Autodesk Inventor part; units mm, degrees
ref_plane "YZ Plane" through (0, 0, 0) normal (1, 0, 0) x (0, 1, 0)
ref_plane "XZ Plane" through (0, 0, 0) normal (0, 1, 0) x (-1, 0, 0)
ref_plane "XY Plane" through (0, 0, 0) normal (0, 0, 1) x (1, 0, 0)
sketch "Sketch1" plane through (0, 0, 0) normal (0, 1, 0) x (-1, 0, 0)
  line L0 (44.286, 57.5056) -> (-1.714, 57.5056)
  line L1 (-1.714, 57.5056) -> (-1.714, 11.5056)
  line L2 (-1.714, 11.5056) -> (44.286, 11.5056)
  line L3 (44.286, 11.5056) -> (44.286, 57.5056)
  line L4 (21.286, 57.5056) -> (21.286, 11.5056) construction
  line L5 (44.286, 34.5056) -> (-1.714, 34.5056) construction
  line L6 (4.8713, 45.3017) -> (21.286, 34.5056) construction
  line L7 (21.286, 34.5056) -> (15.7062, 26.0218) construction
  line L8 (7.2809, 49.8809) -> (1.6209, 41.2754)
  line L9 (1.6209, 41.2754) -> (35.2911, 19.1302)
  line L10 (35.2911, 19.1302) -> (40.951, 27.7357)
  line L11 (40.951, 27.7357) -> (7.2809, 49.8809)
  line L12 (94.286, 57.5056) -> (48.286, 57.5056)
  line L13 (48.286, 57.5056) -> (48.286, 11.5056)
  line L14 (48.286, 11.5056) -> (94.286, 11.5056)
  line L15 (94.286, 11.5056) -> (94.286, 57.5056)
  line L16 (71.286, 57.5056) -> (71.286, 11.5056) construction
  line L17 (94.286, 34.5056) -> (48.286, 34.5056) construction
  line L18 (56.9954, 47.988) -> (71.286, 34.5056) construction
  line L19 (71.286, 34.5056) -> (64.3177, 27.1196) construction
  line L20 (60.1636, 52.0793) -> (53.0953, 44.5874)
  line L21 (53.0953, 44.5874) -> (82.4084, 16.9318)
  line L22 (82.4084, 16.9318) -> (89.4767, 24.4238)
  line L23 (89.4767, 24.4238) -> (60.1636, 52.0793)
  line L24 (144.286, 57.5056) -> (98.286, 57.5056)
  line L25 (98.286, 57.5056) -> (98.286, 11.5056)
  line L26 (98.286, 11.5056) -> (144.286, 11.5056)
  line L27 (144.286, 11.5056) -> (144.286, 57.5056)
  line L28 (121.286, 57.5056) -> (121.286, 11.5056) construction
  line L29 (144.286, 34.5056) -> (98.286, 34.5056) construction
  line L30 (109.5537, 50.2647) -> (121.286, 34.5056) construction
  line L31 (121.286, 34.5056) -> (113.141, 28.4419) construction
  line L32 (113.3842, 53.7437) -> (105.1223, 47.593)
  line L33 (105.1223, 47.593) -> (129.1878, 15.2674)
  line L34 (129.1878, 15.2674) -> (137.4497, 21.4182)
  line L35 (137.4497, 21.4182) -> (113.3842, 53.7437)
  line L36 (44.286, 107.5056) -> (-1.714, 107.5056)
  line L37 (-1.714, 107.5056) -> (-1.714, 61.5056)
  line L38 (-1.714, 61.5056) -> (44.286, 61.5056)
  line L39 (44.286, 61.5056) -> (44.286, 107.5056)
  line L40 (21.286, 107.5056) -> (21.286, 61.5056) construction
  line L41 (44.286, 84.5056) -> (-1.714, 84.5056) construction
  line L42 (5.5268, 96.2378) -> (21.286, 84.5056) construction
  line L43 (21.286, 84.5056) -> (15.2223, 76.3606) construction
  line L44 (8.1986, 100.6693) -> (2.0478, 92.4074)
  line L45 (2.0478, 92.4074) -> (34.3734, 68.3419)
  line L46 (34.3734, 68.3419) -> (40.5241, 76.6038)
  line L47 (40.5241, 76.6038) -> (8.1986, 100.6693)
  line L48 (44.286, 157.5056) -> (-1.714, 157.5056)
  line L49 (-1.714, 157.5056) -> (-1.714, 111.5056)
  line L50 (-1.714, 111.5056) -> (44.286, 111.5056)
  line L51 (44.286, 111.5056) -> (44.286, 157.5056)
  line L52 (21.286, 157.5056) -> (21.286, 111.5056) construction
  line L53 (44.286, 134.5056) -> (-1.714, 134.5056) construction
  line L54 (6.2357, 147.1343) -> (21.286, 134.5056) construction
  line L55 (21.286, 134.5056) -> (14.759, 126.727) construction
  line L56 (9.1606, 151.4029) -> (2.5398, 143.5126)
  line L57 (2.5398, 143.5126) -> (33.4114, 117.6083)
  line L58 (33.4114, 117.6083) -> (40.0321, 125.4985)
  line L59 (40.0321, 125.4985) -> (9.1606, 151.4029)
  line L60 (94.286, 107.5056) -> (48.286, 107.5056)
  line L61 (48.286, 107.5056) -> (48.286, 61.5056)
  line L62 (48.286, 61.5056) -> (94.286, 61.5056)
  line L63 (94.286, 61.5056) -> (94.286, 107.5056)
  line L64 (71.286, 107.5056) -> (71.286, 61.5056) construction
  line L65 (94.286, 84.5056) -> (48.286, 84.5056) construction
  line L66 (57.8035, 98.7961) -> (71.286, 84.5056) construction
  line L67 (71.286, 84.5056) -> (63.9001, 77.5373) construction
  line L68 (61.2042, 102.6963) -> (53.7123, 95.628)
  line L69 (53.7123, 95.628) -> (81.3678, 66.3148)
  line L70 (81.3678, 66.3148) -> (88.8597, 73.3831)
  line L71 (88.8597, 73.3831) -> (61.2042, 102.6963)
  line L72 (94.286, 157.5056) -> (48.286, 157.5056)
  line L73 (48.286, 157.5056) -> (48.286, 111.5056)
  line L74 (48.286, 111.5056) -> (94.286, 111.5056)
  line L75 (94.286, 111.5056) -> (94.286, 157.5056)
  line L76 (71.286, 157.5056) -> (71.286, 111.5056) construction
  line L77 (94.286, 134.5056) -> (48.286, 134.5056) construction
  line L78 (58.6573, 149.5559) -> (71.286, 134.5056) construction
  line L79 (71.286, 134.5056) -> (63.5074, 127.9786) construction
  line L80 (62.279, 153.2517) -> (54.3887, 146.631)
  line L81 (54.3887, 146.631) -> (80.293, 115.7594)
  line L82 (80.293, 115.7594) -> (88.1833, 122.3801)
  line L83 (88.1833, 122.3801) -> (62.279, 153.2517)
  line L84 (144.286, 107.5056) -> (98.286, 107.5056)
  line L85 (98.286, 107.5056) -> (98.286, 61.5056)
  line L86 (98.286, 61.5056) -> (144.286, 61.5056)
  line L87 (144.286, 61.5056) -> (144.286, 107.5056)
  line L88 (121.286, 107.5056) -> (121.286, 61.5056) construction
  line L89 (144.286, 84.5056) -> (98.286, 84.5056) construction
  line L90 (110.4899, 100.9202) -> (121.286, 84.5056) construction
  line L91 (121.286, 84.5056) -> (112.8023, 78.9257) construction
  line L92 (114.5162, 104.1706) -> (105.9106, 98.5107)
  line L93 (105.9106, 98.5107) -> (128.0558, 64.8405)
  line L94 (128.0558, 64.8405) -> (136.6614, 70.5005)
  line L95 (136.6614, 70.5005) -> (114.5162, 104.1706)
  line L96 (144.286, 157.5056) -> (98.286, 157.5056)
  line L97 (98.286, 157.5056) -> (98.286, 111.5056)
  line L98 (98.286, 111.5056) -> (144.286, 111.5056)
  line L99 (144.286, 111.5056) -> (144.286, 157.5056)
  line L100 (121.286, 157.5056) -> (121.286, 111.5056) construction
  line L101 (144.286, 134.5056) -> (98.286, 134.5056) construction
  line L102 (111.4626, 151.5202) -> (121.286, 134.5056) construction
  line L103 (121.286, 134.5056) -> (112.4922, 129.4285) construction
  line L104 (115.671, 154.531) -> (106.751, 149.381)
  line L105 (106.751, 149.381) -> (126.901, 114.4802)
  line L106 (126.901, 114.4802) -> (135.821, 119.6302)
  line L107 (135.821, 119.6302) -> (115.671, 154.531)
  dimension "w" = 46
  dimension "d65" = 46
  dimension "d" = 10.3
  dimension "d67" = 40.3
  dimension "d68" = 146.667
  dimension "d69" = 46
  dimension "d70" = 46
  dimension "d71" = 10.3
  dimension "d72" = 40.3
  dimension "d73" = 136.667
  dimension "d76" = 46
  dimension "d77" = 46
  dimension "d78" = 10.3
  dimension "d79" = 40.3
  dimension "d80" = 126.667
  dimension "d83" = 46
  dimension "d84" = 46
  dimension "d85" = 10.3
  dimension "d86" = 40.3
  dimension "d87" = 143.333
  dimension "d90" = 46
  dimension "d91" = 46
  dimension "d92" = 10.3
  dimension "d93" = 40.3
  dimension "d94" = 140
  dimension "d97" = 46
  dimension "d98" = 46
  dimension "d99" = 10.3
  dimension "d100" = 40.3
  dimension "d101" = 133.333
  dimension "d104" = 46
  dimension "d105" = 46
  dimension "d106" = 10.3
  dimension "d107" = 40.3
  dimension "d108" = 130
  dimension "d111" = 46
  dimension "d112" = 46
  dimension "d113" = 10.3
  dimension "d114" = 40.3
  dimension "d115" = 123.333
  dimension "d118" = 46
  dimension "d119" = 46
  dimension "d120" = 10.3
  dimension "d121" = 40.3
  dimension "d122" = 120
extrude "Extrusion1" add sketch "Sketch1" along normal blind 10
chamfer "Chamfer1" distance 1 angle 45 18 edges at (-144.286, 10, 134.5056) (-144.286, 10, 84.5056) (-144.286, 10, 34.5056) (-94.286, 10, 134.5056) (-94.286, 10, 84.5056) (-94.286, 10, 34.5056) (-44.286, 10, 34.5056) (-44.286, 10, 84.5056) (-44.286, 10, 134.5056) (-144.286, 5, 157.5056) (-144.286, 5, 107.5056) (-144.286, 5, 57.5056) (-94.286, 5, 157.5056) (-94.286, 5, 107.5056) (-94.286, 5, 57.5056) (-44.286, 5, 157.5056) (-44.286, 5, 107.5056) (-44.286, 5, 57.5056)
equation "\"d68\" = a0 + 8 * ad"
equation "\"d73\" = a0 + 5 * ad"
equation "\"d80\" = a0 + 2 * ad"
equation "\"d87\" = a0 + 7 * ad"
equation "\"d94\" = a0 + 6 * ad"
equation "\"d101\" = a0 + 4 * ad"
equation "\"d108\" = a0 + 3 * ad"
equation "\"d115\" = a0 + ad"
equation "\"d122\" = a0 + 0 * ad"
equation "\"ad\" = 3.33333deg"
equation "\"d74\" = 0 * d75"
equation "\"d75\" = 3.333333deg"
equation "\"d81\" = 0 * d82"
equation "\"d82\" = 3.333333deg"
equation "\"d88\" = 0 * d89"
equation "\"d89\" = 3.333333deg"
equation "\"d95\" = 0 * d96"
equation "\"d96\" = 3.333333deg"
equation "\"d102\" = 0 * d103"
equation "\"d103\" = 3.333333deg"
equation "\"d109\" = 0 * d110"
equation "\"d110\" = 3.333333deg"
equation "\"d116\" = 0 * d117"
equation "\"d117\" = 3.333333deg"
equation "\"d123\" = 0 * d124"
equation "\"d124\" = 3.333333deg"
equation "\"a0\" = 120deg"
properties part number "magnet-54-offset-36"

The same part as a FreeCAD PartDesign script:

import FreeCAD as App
import Part
import Sketcher
Q = App.Units.Quantity


def edges_at(feature, points):
    """Names of the edges that pass closest to the given points."""
    edges = feature.Shape.Edges
    near = lambda p: min(range(len(edges)), key=lambda i: edges[i].distToShape(Part.Vertex(*p))[0])
    return sorted({f"Edge{near(p) + 1}" for p in points})


def add_polygon(sketch, points):
    """Adds a closed chain of lines whose ends are joined by coincident constraints."""
    first, n = sketch.GeometryCount, len(points)
    for a, b in zip(points, points[1:] + points[:1]):
        sketch.addGeometry(Part.LineSegment(App.Vector(*a, 0), App.Vector(*b, 0)), False)
    for i in range(n):
        sketch.addConstraint(Sketcher.Constraint("Coincident", first + i, 2, first + (i + 1) % n, 1))

doc = App.newDocument("Part")
body = doc.addObject("PartDesign::Body", "Body")
body.AllowCompound = True

# Sketch on XZ plane
sketch1 = doc.addObject("Sketcher::SketchObject", "Sketch")
body.addObject(sketch1)
sketch1.AttachmentSupport = (doc.XZ_Plane, [""])
sketch1.MapMode = "FlatFace"
add_polygon(sketch1, [(-44, 12), (-44, 58), (2, 58), (2, 12)])  # lines 0-3
add_polygon(sketch1, [(-2, 41), (-7, 50), (-41, 28), (-35, 19)])  # lines 4-7
add_polygon(sketch1, [(-94, 12), (-94, 58), (-48, 58), (-48, 12)])  # lines 8-11
add_polygon(sketch1, [(-53, 45), (-60, 52), (-89, 24), (-82, 17)])  # lines 12-15
add_polygon(sketch1, [(-144, 12), (-144, 58), (-98, 58), (-98, 12)])  # lines 16-19
add_polygon(sketch1, [(-105, 48), (-113, 54), (-137, 21), (-129, 15)])  # lines 20-23
add_polygon(sketch1, [(-44, 62), (-44, 108), (2, 108), (2, 62)])  # lines 24-27
add_polygon(sketch1, [(-2, 92), (-8, 101), (-41, 77), (-34, 68)])  # lines 28-31
add_polygon(sketch1, [(-44, 112), (-44, 158), (2, 158), (2, 112)])  # lines 32-35
add_polygon(sketch1, [(-3, 144), (-9, 151), (-40, 125), (-33, 118)])  # lines 36-39
add_polygon(sketch1, [(-94, 62), (-94, 108), (-48, 108), (-48, 62)])  # lines 40-43
add_polygon(sketch1, [(-54, 96), (-61, 103), (-89, 73), (-81, 66)])  # lines 44-47
add_polygon(sketch1, [(-94, 112), (-94, 158), (-48, 158), (-48, 112)])  # lines 48-51
add_polygon(sketch1, [(-54, 147), (-62, 153), (-88, 122), (-80, 116)])  # lines 52-55
add_polygon(sketch1, [(-144, 62), (-144, 108), (-98, 108), (-98, 62)])  # lines 56-59
add_polygon(sketch1, [(-106, 99), (-115, 104), (-137, 71), (-128, 65)])  # lines 60-63
add_polygon(sketch1, [(-144, 112), (-144, 158), (-98, 158), (-98, 112)])  # lines 64-67
add_polygon(sketch1, [(-107, 149), (-116, 155), (-136, 120), (-127, 114)])  # lines 68-71
sketch1.addConstraint([
    Sketcher.Constraint("Vertical", 0),
    Sketcher.Constraint("Horizontal", 1),
    Sketcher.Constraint("Vertical", 2),
    Sketcher.Constraint("Horizontal", 3),
    Sketcher.Constraint("Vertical", 8),
    Sketcher.Constraint("Horizontal", 9),
    Sketcher.Constraint("Vertical", 10),
    Sketcher.Constraint("Horizontal", 11),
    Sketcher.Constraint("Vertical", 16),
    Sketcher.Constraint("Horizontal", 17),
    Sketcher.Constraint("Vertical", 18),
    Sketcher.Constraint("Horizontal", 19),
    Sketcher.Constraint("Vertical", 24),
    Sketcher.Constraint("Horizontal", 25),
    Sketcher.Constraint("Vertical", 26),
    Sketcher.Constraint("Horizontal", 27),
    Sketcher.Constraint("Vertical", 32),
    Sketcher.Constraint("Horizontal", 33),
    Sketcher.Constraint("Vertical", 34),
    Sketcher.Constraint("Horizontal", 35),
    Sketcher.Constraint("Vertical", 40),
    Sketcher.Constraint("Horizontal", 41),
    Sketcher.Constraint("Vertical", 42),
    Sketcher.Constraint("Horizontal", 43),
    Sketcher.Constraint("Vertical", 48),
    Sketcher.Constraint("Horizontal", 49),
    Sketcher.Constraint("Vertical", 50),
    Sketcher.Constraint("Horizontal", 51),
    Sketcher.Constraint("Vertical", 56),
    Sketcher.Constraint("Horizontal", 57),
    Sketcher.Constraint("Vertical", 58),
    Sketcher.Constraint("Horizontal", 59),
    Sketcher.Constraint("Vertical", 64),
    Sketcher.Constraint("Horizontal", 65),
    Sketcher.Constraint("Vertical", 66),
    Sketcher.Constraint("Horizontal", 67),
    Sketcher.Constraint("Perpendicular", 4, 5),
    Sketcher.Constraint("Perpendicular", 5, 6),
    Sketcher.Constraint("Perpendicular", 6, 7),
    Sketcher.Constraint("Perpendicular", 12, 13),
    Sketcher.Constraint("Perpendicular", 13, 14),
    Sketcher.Constraint("Perpendicular", 14, 15),
    Sketcher.Constraint("Perpendicular", 20, 21),
    Sketcher.Constraint("Perpendicular", 21, 22),
    Sketcher.Constraint("Perpendicular", 22, 23),
    Sketcher.Constraint("Perpendicular", 28, 29),
    Sketcher.Constraint("Perpendicular", 29, 30),
    Sketcher.Constraint("Perpendicular", 30, 31),
    Sketcher.Constraint("Perpendicular", 36, 37),
    Sketcher.Constraint("Perpendicular", 37, 38),
    Sketcher.Constraint("Perpendicular", 38, 39),
    Sketcher.Constraint("Perpendicular", 44, 45),
    Sketcher.Constraint("Perpendicular", 45, 46),
    Sketcher.Constraint("Perpendicular", 46, 47),
    Sketcher.Constraint("Perpendicular", 52, 53),
    Sketcher.Constraint("Perpendicular", 53, 54),
    Sketcher.Constraint("Perpendicular", 54, 55),
    Sketcher.Constraint("Perpendicular", 60, 61),
    Sketcher.Constraint("Perpendicular", 61, 62),
    Sketcher.Constraint("Perpendicular", 62, 63),
    Sketcher.Constraint("Perpendicular", 68, 69),
    Sketcher.Constraint("Perpendicular", 69, 70),
    Sketcher.Constraint("Perpendicular", 70, 71),
    Sketcher.Constraint("Horizontal", 1, 2, 8, 2),
    Sketcher.Constraint("Horizontal", 3, 2, 10, 2),
    Sketcher.Constraint("Horizontal", 9, 2, 16, 2),
    Sketcher.Constraint("Horizontal", 11, 2, 18, 2),
    Sketcher.Constraint("Horizontal", 25, 2, 40, 2),
    Sketcher.Constraint("Horizontal", 27, 2, 42, 2),
    Sketcher.Constraint("Horizontal", 33, 2, 48, 2),
    Sketcher.Constraint("Horizontal", 35, 2, 50, 2),
    Sketcher.Constraint("Horizontal", 41, 2, 56, 2),
    Sketcher.Constraint("Horizontal", 43, 2, 58, 2),
    Sketcher.Constraint("Horizontal", 49, 2, 64, 2),
    Sketcher.Constraint("Horizontal", 51, 2, 66, 2),
    Sketcher.Constraint("Vertical", 3, 2, 24, 2),
    Sketcher.Constraint("Vertical", 2, 2, 25, 2),
    Sketcher.Constraint("Vertical", 27, 2, 32, 2),
    Sketcher.Constraint("Vertical", 26, 2, 33, 2),
    Sketcher.Constraint("Vertical", 11, 2, 40, 2),
    Sketcher.Constraint("Vertical", 10, 2, 41, 2),
    Sketcher.Constraint("Vertical", 43, 2, 48, 2),
    Sketcher.Constraint("Vertical", 42, 2, 49, 2),
    Sketcher.Constraint("Vertical", 19, 2, 56, 2),
    Sketcher.Constraint("Vertical", 18, 2, 57, 2),
    Sketcher.Constraint("Vertical", 59, 2, 64, 2),
    Sketcher.Constraint("Vertical", 58, 2, 65, 2),
    Sketcher.Constraint("Equal", 3, 9),
    Sketcher.Constraint("Equal", 11, 17),
    Sketcher.Constraint("Equal", 67, 0),
    Sketcher.Constraint("Equal", 18, 24),
    Sketcher.Constraint("Equal", 26, 32),
    Sketcher.Constraint("Equal", 6, 12),
    Sketcher.Constraint("Equal", 7, 13),
    Sketcher.Constraint("Equal", 14, 20),
    Sketcher.Constraint("Equal", 15, 21),
    Sketcher.Constraint("Equal", 22, 28),
    Sketcher.Constraint("Equal", 23, 29),
    Sketcher.Constraint("Equal", 30, 36),
    Sketcher.Constraint("Equal", 31, 37),
    Sketcher.Constraint("Equal", 38, 44),
    Sketcher.Constraint("Equal", 39, 45),
    Sketcher.Constraint("Equal", 46, 52),
    Sketcher.Constraint("Equal", 47, 53),
    Sketcher.Constraint("Equal", 54, 60),
    Sketcher.Constraint("Equal", 55, 61),
    Sketcher.Constraint("Equal", 62, 68),
    Sketcher.Constraint("Equal", 63, 69),
    Sketcher.Constraint("DistanceX", 1, 1, 1, 2, Q("46 mm")),
    Sketcher.Constraint("Angle", 36, Q("130.0002 deg")),
    Sketcher.Constraint("Angle", 52, Q("140.0002 deg")),
    Sketcher.Constraint("Angle", 69, Q("-120 deg")),
    Sketcher.Constraint("Distance", 4, Q("10.3 mm")),
    Sketcher.Constraint("Distance", 5, Q("40.3 mm")),
    Sketcher.Constraint("DistanceY", -1, 1, 53, 2, Q("122.38 mm")),
    Sketcher.Constraint("DistanceX", 0, 2, -1, 1, Q("44.286 mm")),
    Sketcher.Constraint("DistanceX", 4, 2, -1, 1, Q("7.281 mm")),
    Sketcher.Constraint("DistanceY", -1, 1, 4, 2, Q("49.881 mm")),
    Sketcher.Constraint("DistanceX", 5, 2, -1, 1, Q("40.951 mm")),
    Sketcher.Constraint("DistanceX", 8, 2, -1, 1, Q("94.286 mm")),
    Sketcher.Constraint("DistanceX", 16, 2, -1, 1, Q("144.286 mm")),
    Sketcher.Constraint("DistanceY", -1, 1, 23, 2, Q("47.593 mm")),
    Sketcher.Constraint("DistanceX", 29, 2, -1, 1, Q("40.524 mm")),
    Sketcher.Constraint("DistanceY", -1, 1, 30, 2, Q("68.342 mm")),
    Sketcher.Constraint("DistanceY", -1, 1, 36, 2, Q("151.403 mm")),
    Sketcher.Constraint("DistanceX", 37, 2, -1, 1, Q("40.032 mm")),
    Sketcher.Constraint("DistanceY", -1, 1, 45, 2, Q("73.383 mm")),
    Sketcher.Constraint("DistanceY", -1, 1, 47, 2, Q("95.628 mm")),
    Sketcher.Constraint("DistanceX", 52, 2, -1, 1, Q("62.279 mm")),
    Sketcher.Constraint("DistanceX", 68, 2, -1, 1, Q("115.671 mm")),
    Sketcher.Constraint("DistanceY", -1, 1, 68, 2, Q("154.531 mm")),
    Sketcher.Constraint("DistanceY", -1, 1, 0, 2, Q("57.5056 mm")),
    Sketcher.Constraint("DistanceX", 12, 2, -1, 1, Q("60.1636 mm")),
    Sketcher.Constraint("DistanceY", -1, 1, 12, 2, Q("52.0793 mm")),
    Sketcher.Constraint("DistanceX", 13, 2, -1, 1, Q("89.4767 mm")),
    Sketcher.Constraint("DistanceX", 20, 2, -1, 1, Q("113.3842 mm")),
    Sketcher.Constraint("DistanceY", -1, 1, 20, 2, Q("53.7437 mm")),
    Sketcher.Constraint("DistanceY", -1, 1, 24, 2, Q("107.5056 mm")),
    Sketcher.Constraint("DistanceX", 28, 2, -1, 1, Q("8.1986 mm")),
    Sketcher.Constraint("DistanceY", -1, 1, 32, 2, Q("157.5056 mm")),
    Sketcher.Constraint("DistanceX", 44, 2, -1, 1, Q("61.2042 mm")),
    Sketcher.Constraint("DistanceX", 60, 2, -1, 1, Q("114.5162 mm")),
    Sketcher.Constraint("DistanceY", -1, 1, 60, 2, Q("104.1706 mm")),
    Sketcher.Constraint("DistanceX", 61, 2, -1, 1, Q("136.6614 mm")),
])
pad1 = doc.addObject("PartDesign::Pad", "Pad")
body.addObject(pad1)
pad1.Profile = sketch1
pad1.Length = 10
pad1.Reversed = True
doc.recompute()

chamfer = doc.addObject("PartDesign::Chamfer", "Chamfer")
body.addObject(chamfer)
chamfer.Base = (pad1, edges_at(pad1, [
    (-144.286, 10, 134.506),
    (-144.286, 10, 84.506),
    (-144.286, 10, 34.506),
    (-94.286, 10, 134.506),
    (-94.286, 10, 84.506),
    (-94.286, 10, 34.506),
    (-44.286, 10, 34.506),
    (-44.286, 10, 84.506),
    (-44.286, 10, 134.506),
    (-144.286, 5, 157.506),
    (-144.286, 5, 107.506),
    (-144.286, 5, 57.506),
    (-94.286, 5, 157.506),
    (-94.286, 5, 107.506),
    (-94.286, 5, 57.506),
    (-44.286, 5, 157.506),
    (-44.286, 5, 107.506),
    (-44.286, 5, 57.506),
]))
chamfer.Size = 1

doc.recompute()
